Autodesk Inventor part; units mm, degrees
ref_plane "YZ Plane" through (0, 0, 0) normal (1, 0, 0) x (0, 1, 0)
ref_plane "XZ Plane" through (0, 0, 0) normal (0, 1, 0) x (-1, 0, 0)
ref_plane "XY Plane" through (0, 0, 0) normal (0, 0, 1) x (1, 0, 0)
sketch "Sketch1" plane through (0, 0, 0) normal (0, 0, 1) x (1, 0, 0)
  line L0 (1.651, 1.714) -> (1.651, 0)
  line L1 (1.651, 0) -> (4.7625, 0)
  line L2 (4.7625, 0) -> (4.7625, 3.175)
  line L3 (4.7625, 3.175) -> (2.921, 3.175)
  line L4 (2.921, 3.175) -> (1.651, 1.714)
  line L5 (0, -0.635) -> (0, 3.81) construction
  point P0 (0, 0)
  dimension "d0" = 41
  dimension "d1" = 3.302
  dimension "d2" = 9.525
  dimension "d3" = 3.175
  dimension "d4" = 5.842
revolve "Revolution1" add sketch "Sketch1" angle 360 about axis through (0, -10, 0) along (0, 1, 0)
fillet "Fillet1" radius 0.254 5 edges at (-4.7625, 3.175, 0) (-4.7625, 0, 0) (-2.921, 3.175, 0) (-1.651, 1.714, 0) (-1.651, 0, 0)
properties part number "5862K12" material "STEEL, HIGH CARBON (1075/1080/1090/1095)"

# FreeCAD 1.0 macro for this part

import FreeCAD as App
import Part
import Sketcher
Q = App.Units.Quantity


def edges_at(feature, points):
    """Names of the edges that pass closest to the given points."""
    edges = feature.Shape.Edges
    near = lambda p: min(range(len(edges)), key=lambda i: edges[i].distToShape(Part.Vertex(*p))[0])
    return sorted({f"Edge{near(p) + 1}" for p in points})

doc = App.newDocument("Part")
params = doc.addObject("Spreadsheet::Sheet", "Params")
for row, (alias, value) in enumerate([
    ("sketch1_height", "0.125 in"),
    ("revolution_angle", "360 deg"),
    ("fillet_radius", "0.01 in"),
], start=1):
    params.set(f"A{row}", alias)
    params.set(f"B{row}", "=" + value)
    params.setAlias(f"B{row}", alias)

body = doc.addObject("PartDesign::Body", "Body")

sketch1 = body.newObject("Sketcher::SketchObject", "Sketch")
sketch1.AttachmentSupport = (doc.getObject("XY_Plane"), [""])
sketch1.MapMode = "FlatFace"
sketch1.addGeometry(Part.LineSegment(App.Vector(2.9, 3.2, 0), App.Vector(1.7, 1.7, 0)), False)
sketch1.addGeometry(Part.LineSegment(App.Vector(1.7, 1.7, 0), App.Vector(1.7, 0, 0)), False)
sketch1.addGeometry(Part.LineSegment(App.Vector(1.7, 0, 0), App.Vector(4.8, 0, 0)), False)
sketch1.addGeometry(Part.LineSegment(App.Vector(4.8, 0, 0), App.Vector(4.8, 3.2, 0)), False)
sketch1.addGeometry(Part.LineSegment(App.Vector(4.8, 3.2, 0), App.Vector(2.9, 3.2, 0)), False)
sketch1.addConstraint(Sketcher.Constraint("Coincident", 0, 2, 1, 1))
sketch1.addConstraint(Sketcher.Constraint("Coincident", 1, 2, 2, 1))
sketch1.addConstraint(Sketcher.Constraint("Coincident", 2, 2, 3, 1))
sketch1.addConstraint(Sketcher.Constraint("Coincident", 3, 2, 4, 1))
sketch1.addConstraint(Sketcher.Constraint("Coincident", 4, 2, 0, 1))
sketch1.addConstraint(Sketcher.Constraint("Vertical", 1))
sketch1.addConstraint(Sketcher.Constraint("Horizontal", 2))
sketch1.addConstraint(Sketcher.Constraint("Vertical", 3))
sketch1.addConstraint(Sketcher.Constraint("Horizontal", 4))
sketch1.addConstraint(Sketcher.Constraint("PointOnObject", 1, 2, -1))
sketch1.addConstraint(Sketcher.Constraint("DistanceY", 3, 1, 3, 2, Q("0.125 in")))
sketch1.addConstraint(Sketcher.Constraint("Angle", 0, Q("-130.9994 deg")))
sketch1.addConstraint(Sketcher.Constraint("DistanceX", 0, 2, 4, 2, Q("0.05 in")))
sketch1.addConstraint(Sketcher.Constraint("DistanceX", 2, 1, 2, 2, Q("0.1225 in")))
sketch1.addConstraint(Sketcher.Constraint("DistanceX", -1, 1, 0, 2, Q("0.065 in")))
sketch1.setExpression("Constraints[10]", "Params.sketch1_height")
revolution = body.newObject("PartDesign::Revolution", "Revolution")
revolution.Profile = sketch1
revolution.ReferenceAxis = (sketch1, ["V_Axis"])
revolution.setExpression("Angle", "Params.revolution_angle")
doc.recompute()

fillet = body.newObject("PartDesign::Fillet", "Fillet")
fillet.Base = (revolution, edges_at(revolution, [
    (-4.763, 3.175, 0),
    (-4.763, 0, 0),
    (-2.921, 3.175, 0),
    (-1.651, 1.714, 0),
    (-1.651, 0, 0),
]))
fillet.setExpression("Radius", "Params.fillet_radius")

doc.recompute()
